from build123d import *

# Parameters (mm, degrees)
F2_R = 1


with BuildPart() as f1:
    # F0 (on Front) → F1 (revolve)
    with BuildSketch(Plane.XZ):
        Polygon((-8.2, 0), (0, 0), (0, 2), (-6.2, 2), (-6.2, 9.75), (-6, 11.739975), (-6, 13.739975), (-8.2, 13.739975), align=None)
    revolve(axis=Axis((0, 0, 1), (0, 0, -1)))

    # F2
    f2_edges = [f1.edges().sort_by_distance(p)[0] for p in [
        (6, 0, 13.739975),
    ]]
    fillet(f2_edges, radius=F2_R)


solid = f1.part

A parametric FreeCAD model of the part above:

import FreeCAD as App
import Part
import Sketcher

V = App.Vector
Q = App.Units.Quantity


def edges_at(feature, points):
    """Names of the edges that pass closest to the given points."""
    edges = feature.Shape.Edges
    near = lambda p: min(range(len(edges)), key=lambda i: edges[i].distToShape(Part.Vertex(*p))[0])
    return sorted({f"Edge{near(p) + 1}" for p in points})

doc = App.newDocument("Part")
body = doc.addObject("PartDesign::Body", "Body")

# Sketch on XZ plane
sketch1 = doc.addObject("Sketcher::SketchObject", "Sketch")
body.addObject(sketch1)
sketch1.AttachmentSupport = (doc.XZ_Plane, [""])
sketch1.MapMode = "FlatFace"
sketch1.addGeometry([
    Part.LineSegment(V(-8.2, 0, 0), V(0, 0, 0)),  # 0
    Part.LineSegment(V(0, 0, 0), V(0, 2, 0)),  # 1
    Part.LineSegment(V(0, 2, 0), V(-6.2, 2, 0)),  # 2
    Part.LineSegment(V(-6.2, 2, 0), V(-6.2, 9.8, 0)),  # 3
    Part.LineSegment(V(-6.2, 9.8, 0), V(-6, 11.7, 0)),  # 4
    Part.LineSegment(V(-6, 11.7, 0), V(-6, 13.7, 0)),  # 5
    Part.LineSegment(V(-6, 13.7, 0), V(-8.2, 13.7, 0)),  # 6
    Part.LineSegment(V(-8.2, 13.7, 0), V(-8.2, 0, 0)),  # 7
], False)
sketch1.addConstraint([
    Sketcher.Constraint("Coincident", 0, 2, 1, 1),
    Sketcher.Constraint("Coincident", 1, 2, 2, 1),
    Sketcher.Constraint("Coincident", 2, 2, 3, 1),
    Sketcher.Constraint("Coincident", 3, 2, 4, 1),
    Sketcher.Constraint("Coincident", 4, 2, 5, 1),
    Sketcher.Constraint("Coincident", 5, 2, 6, 1),
    Sketcher.Constraint("Coincident", 6, 2, 7, 1),
    Sketcher.Constraint("Coincident", 7, 2, 0, 1),
    Sketcher.Constraint("Horizontal", 0),
    Sketcher.Constraint("Vertical", 1),
    Sketcher.Constraint("Horizontal", 2),
    Sketcher.Constraint("Vertical", 3),
    Sketcher.Constraint("Vertical", 5),
    Sketcher.Constraint("Horizontal", 6),
    Sketcher.Constraint("Vertical", 7),
    Sketcher.Constraint("Coincident", 0, 2, -1, 1),
    Sketcher.Constraint("Equal", 1, 5),
    Sketcher.Constraint("DistanceY", 1, 1, 1, 2, Q("2 mm")),
    Sketcher.Constraint("Distance", 4, Q("2 mm")),
    Sketcher.Constraint("DistanceX", 0, 1, 0, 2, Q("8.2 mm")),
    Sketcher.Constraint("DistanceX", 2, 2, 2, 1, Q("6.2 mm")),
    Sketcher.Constraint("DistanceX", 6, 2, 6, 1, Q("2.2 mm")),
    Sketcher.Constraint("DistanceY", 3, 1, 3, 2, Q("7.75 mm")),
])
revolution = doc.addObject("PartDesign::Revolution", "Revolution")
body.addObject(revolution)
revolution.Profile = sketch1
revolution.ReferenceAxis = (sketch1, ["V_Axis"])
revolution.Angle = 360
doc.recompute()

fillet = doc.addObject("PartDesign::Fillet", "Fillet")
body.addObject(fillet)
fillet.Base = (revolution, edges_at(revolution, [(6, 0, 13.74)]))
fillet.Radius = 1

doc.recompute()
